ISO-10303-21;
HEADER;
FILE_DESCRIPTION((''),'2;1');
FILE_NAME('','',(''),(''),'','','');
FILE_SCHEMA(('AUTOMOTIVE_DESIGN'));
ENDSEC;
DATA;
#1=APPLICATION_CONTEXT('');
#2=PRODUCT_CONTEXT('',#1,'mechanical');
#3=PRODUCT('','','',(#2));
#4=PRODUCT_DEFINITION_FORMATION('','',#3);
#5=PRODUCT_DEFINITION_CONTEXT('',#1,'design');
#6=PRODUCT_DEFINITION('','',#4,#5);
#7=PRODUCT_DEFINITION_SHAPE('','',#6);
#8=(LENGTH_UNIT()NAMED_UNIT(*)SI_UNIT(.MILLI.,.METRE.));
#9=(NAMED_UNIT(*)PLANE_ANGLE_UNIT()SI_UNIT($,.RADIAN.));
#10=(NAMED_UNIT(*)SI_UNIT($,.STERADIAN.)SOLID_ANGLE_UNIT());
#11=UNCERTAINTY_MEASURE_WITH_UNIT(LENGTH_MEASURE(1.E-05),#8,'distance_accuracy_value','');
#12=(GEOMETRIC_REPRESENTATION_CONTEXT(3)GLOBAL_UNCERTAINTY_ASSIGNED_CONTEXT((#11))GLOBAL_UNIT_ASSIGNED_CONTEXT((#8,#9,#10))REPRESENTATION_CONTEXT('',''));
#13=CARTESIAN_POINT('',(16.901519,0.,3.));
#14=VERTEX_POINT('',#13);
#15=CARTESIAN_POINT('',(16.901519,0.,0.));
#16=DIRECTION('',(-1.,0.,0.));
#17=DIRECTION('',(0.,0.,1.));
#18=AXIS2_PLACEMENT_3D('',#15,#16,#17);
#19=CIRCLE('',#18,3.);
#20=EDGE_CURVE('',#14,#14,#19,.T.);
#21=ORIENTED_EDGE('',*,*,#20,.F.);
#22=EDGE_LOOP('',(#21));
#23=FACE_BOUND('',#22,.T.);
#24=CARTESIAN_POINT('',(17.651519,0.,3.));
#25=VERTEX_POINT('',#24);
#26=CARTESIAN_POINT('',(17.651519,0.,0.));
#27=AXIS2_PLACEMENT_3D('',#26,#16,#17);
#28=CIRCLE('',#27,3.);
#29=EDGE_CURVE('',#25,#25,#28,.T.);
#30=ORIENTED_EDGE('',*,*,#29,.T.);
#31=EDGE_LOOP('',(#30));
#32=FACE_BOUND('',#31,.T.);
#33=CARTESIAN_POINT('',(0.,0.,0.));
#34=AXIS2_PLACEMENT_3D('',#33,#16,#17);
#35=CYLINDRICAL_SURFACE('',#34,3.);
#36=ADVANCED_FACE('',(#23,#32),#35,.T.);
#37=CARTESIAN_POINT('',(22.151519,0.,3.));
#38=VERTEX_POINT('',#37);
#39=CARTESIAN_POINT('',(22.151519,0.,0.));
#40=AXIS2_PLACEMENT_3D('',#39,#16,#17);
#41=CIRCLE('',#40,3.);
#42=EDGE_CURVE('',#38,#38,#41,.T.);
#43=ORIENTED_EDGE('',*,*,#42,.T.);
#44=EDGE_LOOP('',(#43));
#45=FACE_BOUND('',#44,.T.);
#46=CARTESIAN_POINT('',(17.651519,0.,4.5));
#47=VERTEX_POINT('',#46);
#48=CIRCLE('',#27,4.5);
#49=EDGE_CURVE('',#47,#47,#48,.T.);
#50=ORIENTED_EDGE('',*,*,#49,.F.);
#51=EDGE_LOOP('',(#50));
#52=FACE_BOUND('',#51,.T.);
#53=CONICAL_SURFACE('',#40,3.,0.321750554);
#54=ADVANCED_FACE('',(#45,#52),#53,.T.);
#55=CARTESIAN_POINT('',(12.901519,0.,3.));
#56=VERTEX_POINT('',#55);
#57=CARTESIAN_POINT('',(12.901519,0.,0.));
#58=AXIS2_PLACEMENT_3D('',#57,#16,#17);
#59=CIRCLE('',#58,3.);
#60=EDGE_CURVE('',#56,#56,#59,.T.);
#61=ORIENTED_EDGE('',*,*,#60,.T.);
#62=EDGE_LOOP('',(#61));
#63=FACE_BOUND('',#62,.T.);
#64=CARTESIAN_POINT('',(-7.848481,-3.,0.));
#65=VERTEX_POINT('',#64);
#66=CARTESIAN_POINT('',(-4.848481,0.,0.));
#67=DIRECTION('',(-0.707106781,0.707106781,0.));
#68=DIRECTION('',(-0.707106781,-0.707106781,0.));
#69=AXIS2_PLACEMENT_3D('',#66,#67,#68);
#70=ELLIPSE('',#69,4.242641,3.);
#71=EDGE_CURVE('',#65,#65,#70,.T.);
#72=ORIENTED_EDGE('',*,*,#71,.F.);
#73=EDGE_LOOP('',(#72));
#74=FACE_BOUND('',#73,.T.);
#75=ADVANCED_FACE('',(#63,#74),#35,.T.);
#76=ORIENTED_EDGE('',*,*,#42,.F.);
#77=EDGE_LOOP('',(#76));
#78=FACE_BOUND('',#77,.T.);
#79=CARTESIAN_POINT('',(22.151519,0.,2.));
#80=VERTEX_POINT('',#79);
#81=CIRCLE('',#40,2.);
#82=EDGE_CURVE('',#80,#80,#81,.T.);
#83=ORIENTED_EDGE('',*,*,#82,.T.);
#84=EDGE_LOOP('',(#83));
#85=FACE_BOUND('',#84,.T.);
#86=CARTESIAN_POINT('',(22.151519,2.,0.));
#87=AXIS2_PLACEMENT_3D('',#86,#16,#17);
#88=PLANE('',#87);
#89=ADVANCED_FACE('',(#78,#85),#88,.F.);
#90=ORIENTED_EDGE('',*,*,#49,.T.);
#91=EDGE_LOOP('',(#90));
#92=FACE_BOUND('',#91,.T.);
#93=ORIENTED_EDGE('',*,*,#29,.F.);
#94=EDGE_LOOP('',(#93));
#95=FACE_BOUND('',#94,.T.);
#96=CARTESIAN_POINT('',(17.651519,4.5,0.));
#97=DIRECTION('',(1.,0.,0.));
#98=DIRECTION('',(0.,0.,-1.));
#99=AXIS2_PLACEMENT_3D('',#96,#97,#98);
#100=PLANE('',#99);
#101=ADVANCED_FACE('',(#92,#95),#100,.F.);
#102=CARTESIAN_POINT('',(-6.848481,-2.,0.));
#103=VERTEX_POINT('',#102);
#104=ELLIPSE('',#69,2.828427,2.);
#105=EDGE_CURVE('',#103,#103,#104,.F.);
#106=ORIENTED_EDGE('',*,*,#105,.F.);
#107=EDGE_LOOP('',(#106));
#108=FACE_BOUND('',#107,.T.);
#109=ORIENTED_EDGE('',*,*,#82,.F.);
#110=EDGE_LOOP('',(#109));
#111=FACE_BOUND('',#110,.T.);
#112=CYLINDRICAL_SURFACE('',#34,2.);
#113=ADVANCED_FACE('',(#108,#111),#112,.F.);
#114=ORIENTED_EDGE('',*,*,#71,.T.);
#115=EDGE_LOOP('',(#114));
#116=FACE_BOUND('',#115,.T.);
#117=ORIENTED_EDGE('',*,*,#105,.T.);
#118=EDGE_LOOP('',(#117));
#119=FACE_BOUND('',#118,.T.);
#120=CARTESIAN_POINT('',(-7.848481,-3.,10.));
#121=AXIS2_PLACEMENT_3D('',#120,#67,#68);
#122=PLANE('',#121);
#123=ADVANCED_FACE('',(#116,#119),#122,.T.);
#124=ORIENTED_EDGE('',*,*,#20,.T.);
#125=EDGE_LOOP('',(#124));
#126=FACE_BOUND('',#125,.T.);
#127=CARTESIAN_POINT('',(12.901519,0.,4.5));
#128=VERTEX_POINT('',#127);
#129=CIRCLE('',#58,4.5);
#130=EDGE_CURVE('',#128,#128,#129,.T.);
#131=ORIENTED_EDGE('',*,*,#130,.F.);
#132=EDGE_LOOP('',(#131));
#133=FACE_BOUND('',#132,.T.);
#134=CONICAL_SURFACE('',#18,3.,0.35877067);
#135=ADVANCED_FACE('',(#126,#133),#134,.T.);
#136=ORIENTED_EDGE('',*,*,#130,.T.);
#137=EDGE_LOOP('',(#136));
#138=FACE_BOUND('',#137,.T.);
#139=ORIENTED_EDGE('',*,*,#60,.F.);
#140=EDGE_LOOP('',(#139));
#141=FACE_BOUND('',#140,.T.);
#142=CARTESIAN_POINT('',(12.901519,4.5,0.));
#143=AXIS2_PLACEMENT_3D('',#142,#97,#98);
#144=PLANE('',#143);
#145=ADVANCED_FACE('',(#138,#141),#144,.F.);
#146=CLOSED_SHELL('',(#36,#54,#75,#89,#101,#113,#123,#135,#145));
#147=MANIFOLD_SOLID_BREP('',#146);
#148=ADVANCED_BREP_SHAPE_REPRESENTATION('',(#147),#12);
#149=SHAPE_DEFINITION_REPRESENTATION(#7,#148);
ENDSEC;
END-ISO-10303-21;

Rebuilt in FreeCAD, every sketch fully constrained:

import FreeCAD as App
import Part
import Sketcher
from FreeCAD import Vector
Q = App.Units.Quantity

doc = App.newDocument("Part")
params = doc.addObject("Spreadsheet::Sheet", "Params")
for row, (alias, value) in enumerate([
    ("sketch1_width", "30 mm"),
    ("sketch1_height", "1 mm"),
    ("sketch1_height2", "1.5 mm"),
    ("sketch1_width2", "0.75 mm"),
    ("sketch1_width3", "20.75 mm"),
    ("revolution_angle", "360 deg"),
    ("sketch2_width", "6 mm"),
], start=1):
    params.set(f"A{row}", alias)
    params.set(f"B{row}", "=" + value)
    params.setAlias(f"B{row}", alias)

body = doc.addObject("PartDesign::Body", "Body")

# Sketch on XY plane
sketch1 = doc.addObject("Sketcher::SketchObject", "Sketch")
body.addObject(sketch1)
sketch1.AttachmentSupport = (doc.XY_Plane, [""])
sketch1.MapMode = "FlatFace"
sketch1.addGeometry(Part.LineSegment(Vector(22.2, 3, 0), Vector(17.7, 4.5, 0)), False)
sketch1.addGeometry(Part.LineSegment(Vector(17.7, 4.5, 0), Vector(17.7, 3, 0)), False)
sketch1.addGeometry(Part.LineSegment(Vector(17.7, 3, 0), Vector(16.9, 3, 0)), False)
sketch1.addGeometry(Part.LineSegment(Vector(16.9, 3, 0), Vector(12.9, 4.5, 0)), False)
sketch1.addGeometry(Part.LineSegment(Vector(12.9, 4.5, 0), Vector(12.9, 3, 0)), False)
sketch1.addGeometry(Part.LineSegment(Vector(12.9, 3, 0), Vector(-7.8, 3, 0)), False)
sketch1.addGeometry(Part.LineSegment(Vector(-7.8, 3, 0), Vector(-7.8, 2, 0)), False)
sketch1.addGeometry(Part.LineSegment(Vector(-7.8, 2, 0), Vector(22.2, 2, 0)), False)
sketch1.addGeometry(Part.LineSegment(Vector(22.2, 2, 0), Vector(22.2, 3, 0)), False)
sketch1.addConstraint(Sketcher.Constraint("Coincident", 0, 2, 1, 1))
sketch1.addConstraint(Sketcher.Constraint("Coincident", 1, 2, 2, 1))
sketch1.addConstraint(Sketcher.Constraint("Coincident", 2, 2, 3, 1))
sketch1.addConstraint(Sketcher.Constraint("Coincident", 3, 2, 4, 1))
sketch1.addConstraint(Sketcher.Constraint("Coincident", 4, 2, 5, 1))
sketch1.addConstraint(Sketcher.Constraint("Coincident", 5, 2, 6, 1))
sketch1.addConstraint(Sketcher.Constraint("Coincident", 6, 2, 7, 1))
sketch1.addConstraint(Sketcher.Constraint("Coincident", 7, 2, 8, 1))
sketch1.addConstraint(Sketcher.Constraint("Coincident", 8, 2, 0, 1))
sketch1.addConstraint(Sketcher.Constraint("Vertical", 1))
sketch1.addConstraint(Sketcher.Constraint("Horizontal", 2))
sketch1.addConstraint(Sketcher.Constraint("Vertical", 4))
sketch1.addConstraint(Sketcher.Constraint("Horizontal", 5))
sketch1.addConstraint(Sketcher.Constraint("Vertical", 6))
sketch1.addConstraint(Sketcher.Constraint("Horizontal", 7))
sketch1.addConstraint(Sketcher.Constraint("Vertical", 8))
sketch1.addConstraint(Sketcher.Constraint("Horizontal", 0, 2, 3, 2))
sketch1.addConstraint(Sketcher.Constraint("Horizontal", 2, 2, 4, 2))
sketch1.addConstraint(Sketcher.Constraint("Horizontal", 5, 2, 8, 2))
sketch1.addConstraint(Sketcher.Constraint("DistanceX", 7, 1, 7, 2, Q("30 mm")))
sketch1.addConstraint(Sketcher.Constraint("DistanceY", 6, 2, 6, 1, Q("1 mm")))
sketch1.addConstraint(Sketcher.Constraint("DistanceY", 1, 2, 1, 1, Q("1.5 mm")))
sketch1.addConstraint(Sketcher.Constraint("DistanceY", -1, 1, 1, 2, Q("3 mm")))
sketch1.addConstraint(Sketcher.Constraint("DistanceX", 3, 2, 2, 2, Q("4 mm")))
sketch1.addConstraint(Sketcher.Constraint("DistanceX", 2, 2, 2, 1, Q("0.75 mm")))
sketch1.addConstraint(Sketcher.Constraint("DistanceX", 5, 2, 5, 1, Q("20.75 mm")))
sketch1.addConstraint(Sketcher.Constraint("DistanceX", -1, 1, 0, 2, Q("17.651519 mm")))
sketch1.setExpression("Constraints[19]", "Params.sketch1_width")
sketch1.setExpression("Constraints[20]", "Params.sketch1_height")
sketch1.setExpression("Constraints[21]", "Params.sketch1_height2")
sketch1.setExpression("Constraints[24]", "Params.sketch1_width2")
sketch1.setExpression("Constraints[25]", "Params.sketch1_width3")
revolution = doc.addObject("PartDesign::Revolution", "Revolution")
body.addObject(revolution)
revolution.Profile = sketch1
revolution.ReferenceAxis = (sketch1, ["H_Axis"])
revolution.setExpression("Angle", "Params.revolution_angle")

# Sketch on XY plane
sketch2 = doc.addObject("Sketcher::SketchObject", "Sketch001")
body.addObject(sketch2)
sketch2.AttachmentSupport = (doc.XY_Plane, [""])
sketch2.MapMode = "FlatFace"
sketch2.addGeometry(Part.LineSegment(Vector(-8, -3, 0), Vector(-2, 3, 0)), False)
sketch2.addGeometry(Part.LineSegment(Vector(-2, 3, 0), Vector(-8, 3, 0)), False)
sketch2.addGeometry(Part.LineSegment(Vector(-8, 3, 0), Vector(-8, -3, 0)), False)
sketch2.addConstraint(Sketcher.Constraint("Coincident", 0, 2, 1, 1))
sketch2.addConstraint(Sketcher.Constraint("Coincident", 1, 2, 2, 1))
sketch2.addConstraint(Sketcher.Constraint("Coincident", 2, 2, 0, 1))
sketch2.addConstraint(Sketcher.Constraint("Horizontal", 1))
sketch2.addConstraint(Sketcher.Constraint("Vertical", 2))
sketch2.addConstraint(Sketcher.Constraint("Equal", 1, 2))
sketch2.addConstraint(Sketcher.Constraint("DistanceX", 1, 2, 1, 1, Q("6 mm")))
sketch2.addConstraint(Sketcher.Constraint("DistanceY", -1, 1, 0, 2, Q("3 mm")))
sketch2.addConstraint(Sketcher.Constraint("DistanceX", 0, 2, -1, 1, Q("1.848481 mm")))
sketch2.setExpression("Constraints[6]", "Params.sketch2_width")
pocket1 = doc.addObject("PartDesign::Pocket", "Pocket")
body.addObject(pocket1)
pocket1.Profile = sketch2
pocket1.Type = "ThroughAll"
pocket1.Midplane = True

doc.recompute()
